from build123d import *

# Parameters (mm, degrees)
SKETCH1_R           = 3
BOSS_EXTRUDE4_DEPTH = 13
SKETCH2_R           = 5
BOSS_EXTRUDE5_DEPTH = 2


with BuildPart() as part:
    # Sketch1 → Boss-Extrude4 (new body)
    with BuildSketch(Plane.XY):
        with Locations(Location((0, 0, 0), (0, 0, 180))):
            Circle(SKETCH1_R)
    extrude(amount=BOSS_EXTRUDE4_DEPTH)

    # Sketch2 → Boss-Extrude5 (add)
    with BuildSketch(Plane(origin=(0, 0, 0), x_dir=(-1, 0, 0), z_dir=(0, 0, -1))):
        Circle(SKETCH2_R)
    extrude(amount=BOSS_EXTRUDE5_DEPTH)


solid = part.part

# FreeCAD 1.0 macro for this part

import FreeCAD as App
import Part
import Sketcher

doc = App.newDocument("Part")
body = doc.addObject("PartDesign::Body", "Body")

sketch1 = body.newObject("Sketcher::SketchObject", "Sketch")
sketch1.AttachmentSupport = (doc.getObject("XY_Plane"), [""])
sketch1.MapMode = "FlatFace"
sketch1.addGeometry(Part.Circle(App.Vector(0, 0, 0), App.Vector(0, 0, 1), 3), False)
sketch1.addConstraint([
    Sketcher.Constraint("Coincident", 0, 3, -1, 1),
    Sketcher.Constraint("Diameter", 0, 6.0),
])
pad1 = body.newObject("PartDesign::Pad", "Pad")
pad1.Profile = sketch1
pad1.Length = 13

sketch2 = body.newObject("Sketcher::SketchObject", "Sketch001")
sketch2.AttachmentSupport = (doc.getObject("XY_Plane"), [""])
sketch2.MapMode = "FlatFace"
sketch2.addGeometry(Part.Circle(App.Vector(0, 0, 0), App.Vector(0, 0, 1), 5), False)
sketch2.addConstraint([
    Sketcher.Constraint("Coincident", 0, 3, -1, 1),
    Sketcher.Constraint("Diameter", 0, 10.0),
])
pad2 = body.newObject("PartDesign::Pad", "Pad001")
pad2.Profile = sketch2
pad2.Length = 2
pad2.Reversed = True

doc.recompute()
